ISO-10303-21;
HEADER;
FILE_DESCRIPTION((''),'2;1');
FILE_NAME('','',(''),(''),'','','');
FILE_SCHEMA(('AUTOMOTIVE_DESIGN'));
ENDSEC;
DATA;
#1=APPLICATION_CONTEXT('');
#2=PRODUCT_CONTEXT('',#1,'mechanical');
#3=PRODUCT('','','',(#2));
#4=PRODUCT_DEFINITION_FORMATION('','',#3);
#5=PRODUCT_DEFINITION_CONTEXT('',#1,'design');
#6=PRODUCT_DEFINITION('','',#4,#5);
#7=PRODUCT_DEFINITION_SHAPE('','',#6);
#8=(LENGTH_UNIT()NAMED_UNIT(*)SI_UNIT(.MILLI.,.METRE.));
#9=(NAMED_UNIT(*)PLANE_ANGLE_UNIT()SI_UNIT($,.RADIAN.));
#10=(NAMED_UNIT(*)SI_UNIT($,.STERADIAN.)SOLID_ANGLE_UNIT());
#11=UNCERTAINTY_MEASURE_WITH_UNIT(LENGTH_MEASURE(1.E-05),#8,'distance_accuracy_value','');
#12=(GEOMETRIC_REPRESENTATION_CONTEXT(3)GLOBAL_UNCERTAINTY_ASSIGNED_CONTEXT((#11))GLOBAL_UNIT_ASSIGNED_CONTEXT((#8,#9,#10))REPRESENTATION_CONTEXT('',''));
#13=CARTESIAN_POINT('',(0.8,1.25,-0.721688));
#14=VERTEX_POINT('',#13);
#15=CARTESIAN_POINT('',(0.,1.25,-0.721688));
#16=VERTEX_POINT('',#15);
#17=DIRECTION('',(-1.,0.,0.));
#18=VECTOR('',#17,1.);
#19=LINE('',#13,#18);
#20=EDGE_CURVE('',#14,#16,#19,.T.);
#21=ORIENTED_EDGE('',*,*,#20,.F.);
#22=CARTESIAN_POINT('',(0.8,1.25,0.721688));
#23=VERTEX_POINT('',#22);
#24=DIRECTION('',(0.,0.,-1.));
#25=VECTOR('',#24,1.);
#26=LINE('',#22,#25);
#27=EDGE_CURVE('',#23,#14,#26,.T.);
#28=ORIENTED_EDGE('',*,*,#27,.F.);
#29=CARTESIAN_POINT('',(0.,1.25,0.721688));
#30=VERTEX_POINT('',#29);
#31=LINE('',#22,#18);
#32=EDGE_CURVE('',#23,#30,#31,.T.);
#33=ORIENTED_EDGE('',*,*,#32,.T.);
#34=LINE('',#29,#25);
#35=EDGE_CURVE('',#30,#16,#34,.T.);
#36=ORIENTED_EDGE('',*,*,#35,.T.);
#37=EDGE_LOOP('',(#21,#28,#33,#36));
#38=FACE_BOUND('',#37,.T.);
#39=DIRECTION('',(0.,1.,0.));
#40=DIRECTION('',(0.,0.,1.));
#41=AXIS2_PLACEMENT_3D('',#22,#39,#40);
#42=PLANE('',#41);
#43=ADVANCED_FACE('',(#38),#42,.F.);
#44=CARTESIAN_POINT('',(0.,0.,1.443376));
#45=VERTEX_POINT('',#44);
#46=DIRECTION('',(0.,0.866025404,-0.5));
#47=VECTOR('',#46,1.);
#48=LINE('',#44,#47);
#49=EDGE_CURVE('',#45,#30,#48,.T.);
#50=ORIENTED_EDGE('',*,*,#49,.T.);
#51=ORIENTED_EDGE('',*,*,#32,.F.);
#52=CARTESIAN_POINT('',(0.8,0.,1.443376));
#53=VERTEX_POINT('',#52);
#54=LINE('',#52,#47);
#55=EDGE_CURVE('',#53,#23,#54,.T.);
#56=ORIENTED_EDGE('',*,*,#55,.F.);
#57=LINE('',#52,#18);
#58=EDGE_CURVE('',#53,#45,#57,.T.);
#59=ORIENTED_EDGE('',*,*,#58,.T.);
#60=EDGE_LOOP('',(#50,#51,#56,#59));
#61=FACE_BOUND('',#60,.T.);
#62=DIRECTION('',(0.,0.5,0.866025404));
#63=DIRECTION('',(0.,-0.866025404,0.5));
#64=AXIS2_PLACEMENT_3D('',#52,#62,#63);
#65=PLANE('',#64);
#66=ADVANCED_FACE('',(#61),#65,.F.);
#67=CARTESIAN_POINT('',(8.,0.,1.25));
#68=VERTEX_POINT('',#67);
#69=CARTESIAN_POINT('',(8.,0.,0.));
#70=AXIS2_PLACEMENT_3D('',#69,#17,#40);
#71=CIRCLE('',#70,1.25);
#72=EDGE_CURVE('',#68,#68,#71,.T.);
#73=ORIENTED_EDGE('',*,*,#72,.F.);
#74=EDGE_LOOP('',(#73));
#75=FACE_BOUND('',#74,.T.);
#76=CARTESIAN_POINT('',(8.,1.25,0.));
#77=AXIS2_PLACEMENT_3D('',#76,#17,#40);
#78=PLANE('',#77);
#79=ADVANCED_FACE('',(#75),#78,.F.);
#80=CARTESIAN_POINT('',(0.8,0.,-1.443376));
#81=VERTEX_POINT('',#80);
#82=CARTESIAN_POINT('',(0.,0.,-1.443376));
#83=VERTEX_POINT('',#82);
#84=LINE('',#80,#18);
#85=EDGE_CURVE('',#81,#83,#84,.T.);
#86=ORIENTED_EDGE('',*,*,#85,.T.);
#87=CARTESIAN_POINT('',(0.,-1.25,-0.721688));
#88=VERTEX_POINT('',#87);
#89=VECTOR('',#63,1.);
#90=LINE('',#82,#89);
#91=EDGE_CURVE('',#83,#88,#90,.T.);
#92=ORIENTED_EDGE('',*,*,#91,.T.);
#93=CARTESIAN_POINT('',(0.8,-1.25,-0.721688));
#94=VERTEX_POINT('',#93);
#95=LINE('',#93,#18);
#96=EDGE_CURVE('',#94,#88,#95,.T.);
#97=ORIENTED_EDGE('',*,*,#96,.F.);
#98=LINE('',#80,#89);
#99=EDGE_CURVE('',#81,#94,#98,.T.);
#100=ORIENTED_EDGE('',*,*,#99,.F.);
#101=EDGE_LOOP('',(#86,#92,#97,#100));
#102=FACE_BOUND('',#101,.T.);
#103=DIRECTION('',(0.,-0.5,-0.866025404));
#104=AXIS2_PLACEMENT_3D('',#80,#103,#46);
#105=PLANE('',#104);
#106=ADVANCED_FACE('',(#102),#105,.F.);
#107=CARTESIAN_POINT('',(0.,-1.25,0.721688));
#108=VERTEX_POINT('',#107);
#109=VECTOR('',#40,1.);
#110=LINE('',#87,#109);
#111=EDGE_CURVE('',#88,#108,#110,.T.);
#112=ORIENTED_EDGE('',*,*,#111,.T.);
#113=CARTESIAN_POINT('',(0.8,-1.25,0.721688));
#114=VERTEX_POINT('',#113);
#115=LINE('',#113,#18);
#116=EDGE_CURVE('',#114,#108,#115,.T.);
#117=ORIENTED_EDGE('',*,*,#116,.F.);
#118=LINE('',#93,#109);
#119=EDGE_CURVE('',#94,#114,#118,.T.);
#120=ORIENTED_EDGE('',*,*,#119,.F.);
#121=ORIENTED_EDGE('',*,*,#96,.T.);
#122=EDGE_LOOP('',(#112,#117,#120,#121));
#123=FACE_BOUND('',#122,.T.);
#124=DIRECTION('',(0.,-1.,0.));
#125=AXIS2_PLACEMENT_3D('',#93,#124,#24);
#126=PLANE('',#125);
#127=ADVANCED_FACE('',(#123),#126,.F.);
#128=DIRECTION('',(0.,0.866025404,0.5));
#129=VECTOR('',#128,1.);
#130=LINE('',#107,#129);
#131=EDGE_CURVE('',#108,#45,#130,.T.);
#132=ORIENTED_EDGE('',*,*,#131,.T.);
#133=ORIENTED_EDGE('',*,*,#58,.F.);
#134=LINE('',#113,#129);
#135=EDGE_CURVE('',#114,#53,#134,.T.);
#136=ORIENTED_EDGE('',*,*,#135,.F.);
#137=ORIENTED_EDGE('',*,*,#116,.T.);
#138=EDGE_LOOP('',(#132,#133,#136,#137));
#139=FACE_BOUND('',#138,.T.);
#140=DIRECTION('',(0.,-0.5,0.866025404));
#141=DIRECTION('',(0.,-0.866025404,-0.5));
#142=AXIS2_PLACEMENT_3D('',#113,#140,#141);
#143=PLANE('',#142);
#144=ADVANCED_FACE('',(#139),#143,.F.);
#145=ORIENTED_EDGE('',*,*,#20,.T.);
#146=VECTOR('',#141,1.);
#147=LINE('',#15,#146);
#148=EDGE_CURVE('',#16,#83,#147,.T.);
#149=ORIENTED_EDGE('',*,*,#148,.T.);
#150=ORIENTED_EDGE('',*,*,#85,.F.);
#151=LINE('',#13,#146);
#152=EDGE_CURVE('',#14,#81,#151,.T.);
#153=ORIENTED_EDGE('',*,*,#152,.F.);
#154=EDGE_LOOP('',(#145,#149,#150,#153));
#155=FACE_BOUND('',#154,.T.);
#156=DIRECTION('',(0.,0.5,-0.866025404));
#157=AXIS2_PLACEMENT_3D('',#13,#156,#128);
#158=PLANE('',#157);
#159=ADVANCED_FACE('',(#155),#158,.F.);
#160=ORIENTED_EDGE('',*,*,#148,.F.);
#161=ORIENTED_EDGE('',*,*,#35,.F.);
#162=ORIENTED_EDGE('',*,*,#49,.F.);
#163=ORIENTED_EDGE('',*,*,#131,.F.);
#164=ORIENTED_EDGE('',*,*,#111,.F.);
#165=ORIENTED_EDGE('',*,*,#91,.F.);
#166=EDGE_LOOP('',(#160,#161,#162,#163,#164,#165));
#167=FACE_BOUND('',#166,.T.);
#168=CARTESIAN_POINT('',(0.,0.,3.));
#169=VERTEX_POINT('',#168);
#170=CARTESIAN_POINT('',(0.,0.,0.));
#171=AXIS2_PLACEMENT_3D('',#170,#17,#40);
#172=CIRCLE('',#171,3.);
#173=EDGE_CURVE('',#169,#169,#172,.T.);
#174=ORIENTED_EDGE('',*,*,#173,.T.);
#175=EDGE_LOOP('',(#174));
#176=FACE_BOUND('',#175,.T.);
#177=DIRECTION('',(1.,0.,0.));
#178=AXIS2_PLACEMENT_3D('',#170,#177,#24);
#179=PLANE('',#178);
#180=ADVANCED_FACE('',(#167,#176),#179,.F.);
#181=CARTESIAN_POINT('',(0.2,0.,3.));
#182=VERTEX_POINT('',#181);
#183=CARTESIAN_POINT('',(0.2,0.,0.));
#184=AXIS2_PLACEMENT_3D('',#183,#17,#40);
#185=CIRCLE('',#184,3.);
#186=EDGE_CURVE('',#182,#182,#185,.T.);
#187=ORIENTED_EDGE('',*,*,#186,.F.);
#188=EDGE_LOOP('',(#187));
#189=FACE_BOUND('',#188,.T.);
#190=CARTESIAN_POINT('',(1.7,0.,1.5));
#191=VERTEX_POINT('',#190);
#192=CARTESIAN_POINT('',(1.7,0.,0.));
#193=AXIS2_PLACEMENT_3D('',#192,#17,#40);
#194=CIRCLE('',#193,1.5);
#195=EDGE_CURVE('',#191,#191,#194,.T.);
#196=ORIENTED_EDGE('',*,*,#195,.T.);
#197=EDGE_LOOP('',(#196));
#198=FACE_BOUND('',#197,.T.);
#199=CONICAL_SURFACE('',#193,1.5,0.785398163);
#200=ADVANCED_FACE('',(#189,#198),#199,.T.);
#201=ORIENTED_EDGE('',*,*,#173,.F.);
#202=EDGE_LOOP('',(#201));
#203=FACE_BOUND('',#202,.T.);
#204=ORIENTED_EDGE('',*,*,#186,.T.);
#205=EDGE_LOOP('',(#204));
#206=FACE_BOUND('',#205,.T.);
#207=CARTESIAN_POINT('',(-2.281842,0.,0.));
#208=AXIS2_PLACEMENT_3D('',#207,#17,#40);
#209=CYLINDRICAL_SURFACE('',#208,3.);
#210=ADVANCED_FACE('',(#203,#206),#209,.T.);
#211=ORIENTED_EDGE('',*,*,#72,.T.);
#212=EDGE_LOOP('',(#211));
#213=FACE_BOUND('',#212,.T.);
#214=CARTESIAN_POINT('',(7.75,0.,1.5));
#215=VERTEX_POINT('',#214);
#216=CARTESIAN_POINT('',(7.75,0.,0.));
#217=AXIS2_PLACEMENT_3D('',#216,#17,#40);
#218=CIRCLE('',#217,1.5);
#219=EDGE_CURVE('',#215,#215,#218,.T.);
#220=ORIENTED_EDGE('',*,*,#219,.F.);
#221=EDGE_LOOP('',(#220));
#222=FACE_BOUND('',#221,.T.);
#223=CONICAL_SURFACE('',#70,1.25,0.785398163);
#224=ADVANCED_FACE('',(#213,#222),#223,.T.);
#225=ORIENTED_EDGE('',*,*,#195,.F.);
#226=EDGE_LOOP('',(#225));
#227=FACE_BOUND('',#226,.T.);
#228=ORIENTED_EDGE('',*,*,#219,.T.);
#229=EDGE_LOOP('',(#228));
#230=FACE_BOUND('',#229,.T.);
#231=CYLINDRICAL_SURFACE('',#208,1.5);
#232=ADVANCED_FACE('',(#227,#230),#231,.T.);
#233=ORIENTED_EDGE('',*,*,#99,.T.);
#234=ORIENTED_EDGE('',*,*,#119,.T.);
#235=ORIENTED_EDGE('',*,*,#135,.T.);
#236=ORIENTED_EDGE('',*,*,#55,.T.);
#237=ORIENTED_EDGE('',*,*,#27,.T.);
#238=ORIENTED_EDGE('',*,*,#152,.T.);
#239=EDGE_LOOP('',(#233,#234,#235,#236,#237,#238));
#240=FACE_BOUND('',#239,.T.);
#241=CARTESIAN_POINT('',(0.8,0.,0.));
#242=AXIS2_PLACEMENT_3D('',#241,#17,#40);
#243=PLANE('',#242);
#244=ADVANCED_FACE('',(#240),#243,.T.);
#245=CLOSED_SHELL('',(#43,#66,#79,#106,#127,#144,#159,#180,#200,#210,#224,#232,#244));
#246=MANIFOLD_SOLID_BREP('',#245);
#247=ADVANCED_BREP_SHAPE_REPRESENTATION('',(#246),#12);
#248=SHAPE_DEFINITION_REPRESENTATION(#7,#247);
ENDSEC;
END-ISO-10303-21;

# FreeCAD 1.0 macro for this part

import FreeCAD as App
import Part
import Sketcher
Q = App.Units.Quantity

doc = App.newDocument("Part")
body = doc.addObject("PartDesign::Body", "Body")

sketch1 = doc.addObject("Sketcher::SketchObject", "Sketch")
body.addObject(sketch1)
sketch1.AttachmentSupport = (doc.XY_Plane, [""])
sketch1.MapMode = "FlatFace"
sketch1.addGeometry([
    Part.LineSegment(App.Vector(0, 3, 0), App.Vector(0, 0, 0)),
    Part.LineSegment(App.Vector(0, 0, 0), App.Vector(8, 0, 0)),
    Part.LineSegment(App.Vector(8, 0, 0), App.Vector(8, 1.25, 0)),
    Part.LineSegment(App.Vector(8, 1.25, 0), App.Vector(7.75, 1.5, 0)),
    Part.LineSegment(App.Vector(7.75, 1.5, 0), App.Vector(1.7, 1.5, 0)),
    Part.LineSegment(App.Vector(1.7, 1.5, 0), App.Vector(0.2, 3, 0)),
    Part.LineSegment(App.Vector(0.2, 3, 0), App.Vector(0, 3, 0)),
], False)
sketch1.addConstraint([
    Sketcher.Constraint("Coincident", 0, 2, 1, 1),
    Sketcher.Constraint("Coincident", 1, 2, 2, 1),
    Sketcher.Constraint("Coincident", 2, 2, 3, 1),
    Sketcher.Constraint("Coincident", 3, 2, 4, 1),
    Sketcher.Constraint("Coincident", 4, 2, 5, 1),
    Sketcher.Constraint("Coincident", 5, 2, 6, 1),
    Sketcher.Constraint("Coincident", 6, 2, 0, 1),
    Sketcher.Constraint("Vertical", 0),
    Sketcher.Constraint("Horizontal", 1),
    Sketcher.Constraint("Vertical", 2),
    Sketcher.Constraint("Horizontal", 4),
    Sketcher.Constraint("Horizontal", 6),
    Sketcher.Constraint("Coincident", 0, 2, -1, 1),
    Sketcher.Constraint("Parallel", 3, 5),
    Sketcher.Constraint("DistanceX", 1, 1, 1, 2, Q("8 mm")),
    Sketcher.Constraint("DistanceY", 0, 2, 0, 1, Q("3 mm")),
    Sketcher.Constraint("Angle", 3, Q("135 deg")),
    Sketcher.Constraint("DistanceX", 6, 2, 6, 1, Q("0.2 mm")),
    Sketcher.Constraint("DistanceX", 4, 2, 4, 1, Q("6.05 mm")),
    Sketcher.Constraint("DistanceY", -1, 1, 3, 2, Q("1.5 mm")),
])
revolution = doc.addObject("PartDesign::Revolution", "Revolution")
body.addObject(revolution)
revolution.Profile = sketch1
revolution.ReferenceAxis = (sketch1, ["H_Axis"])
revolution.Angle = 360

sketch2 = doc.addObject("Sketcher::SketchObject", "Sketch001")
body.addObject(sketch2)
sketch2.AttachmentSupport = (doc.YZ_Plane, [""])
sketch2.MapMode = "FlatFace"
sketch2.addGeometry([
    Part.LineSegment(App.Vector(-1.2, 0.7, 0), App.Vector(0, 1.4, 0)),
    Part.LineSegment(App.Vector(0, 1.4, 0), App.Vector(1.2, 0.7, 0)),
    Part.LineSegment(App.Vector(1.2, 0.7, 0), App.Vector(1.2, -0.7, 0)),
    Part.LineSegment(App.Vector(1.2, -0.7, 0), App.Vector(0, -1.4, 0)),
    Part.LineSegment(App.Vector(0, -1.4, 0), App.Vector(-1.2, -0.7, 0)),
    Part.LineSegment(App.Vector(-1.2, -0.7, 0), App.Vector(-1.2, 0.7, 0)),
], False)
sketch2.addConstraint([
    Sketcher.Constraint("Coincident", 0, 2, 1, 1),
    Sketcher.Constraint("Coincident", 1, 2, 2, 1),
    Sketcher.Constraint("Coincident", 2, 2, 3, 1),
    Sketcher.Constraint("Coincident", 3, 2, 4, 1),
    Sketcher.Constraint("Coincident", 4, 2, 5, 1),
    Sketcher.Constraint("Coincident", 5, 2, 0, 1),
    Sketcher.Constraint("Vertical", 2),
    Sketcher.Constraint("Vertical", 5),
    Sketcher.Constraint("Symmetric", 0, 2, 3, 2, -1, 1),
    Sketcher.Constraint("Symmetric", 1, 2, 4, 2, -1, 1),
    Sketcher.Constraint("PointOnObject", 0, 2, -2),
    Sketcher.Constraint("Parallel", 0, 3),
    Sketcher.Constraint("Horizontal", 2, 2, 4, 2),
    Sketcher.Constraint("Angle", 0, Q("30 deg")),
    Sketcher.Constraint("DistanceX", 4, 2, 2, 2, Q("2.5 mm")),
    Sketcher.Constraint("DistanceY", 2, 2, 2, 1, Q("1.443376 mm")),
])
pocket1 = doc.addObject("PartDesign::Pocket", "Pocket")
body.addObject(pocket1)
pocket1.Profile = sketch2
pocket1.Length = 0.8
pocket1.Reversed = True

doc.recompute()
